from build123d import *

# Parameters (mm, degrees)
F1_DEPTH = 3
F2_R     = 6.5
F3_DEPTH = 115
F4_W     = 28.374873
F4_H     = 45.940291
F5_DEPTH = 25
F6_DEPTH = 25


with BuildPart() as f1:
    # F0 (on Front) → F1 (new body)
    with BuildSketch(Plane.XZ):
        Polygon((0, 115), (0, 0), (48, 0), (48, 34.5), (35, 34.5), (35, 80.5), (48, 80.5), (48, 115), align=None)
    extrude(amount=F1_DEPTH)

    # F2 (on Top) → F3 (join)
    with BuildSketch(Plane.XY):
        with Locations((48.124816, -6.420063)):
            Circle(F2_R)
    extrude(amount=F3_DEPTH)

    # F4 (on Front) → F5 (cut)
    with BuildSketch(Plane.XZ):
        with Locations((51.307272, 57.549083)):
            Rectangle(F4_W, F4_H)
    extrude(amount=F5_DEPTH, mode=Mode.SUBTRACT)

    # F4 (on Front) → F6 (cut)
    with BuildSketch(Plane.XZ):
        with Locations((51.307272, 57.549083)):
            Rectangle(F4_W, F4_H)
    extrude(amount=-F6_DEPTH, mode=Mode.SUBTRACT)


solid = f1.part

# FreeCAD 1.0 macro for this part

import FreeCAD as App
import Part
import Sketcher

V = App.Vector

doc = App.newDocument("Part")
params = doc.addObject("Spreadsheet::Sheet", "Params")
for row, (alias, value) in enumerate([
    ("sketch1_width", "48 mm"),
    ("sketch1_width2", "13 mm"),
    ("sketch1_height", "115 mm"),
    ("sketch1_height2", "46 mm"),
    ("pad1_length", "3 mm"),
    ("sketch2_diameter", "13 mm"),
    ("pad2_length", "115 mm"),
    ("pocket1_length", "25 mm"),
    ("pocket2_length", "25 mm"),
], start=1):
    params.set(f"A{row}", alias)
    params.set(f"B{row}", "=" + value)
    params.setAlias(f"B{row}", alias)

body = doc.addObject("PartDesign::Body", "Body")

# Sketch on XZ plane
sketch1 = body.newObject("Sketcher::SketchObject", "Sketch")
sketch1.AttachmentSupport = (doc.getObject("XZ_Plane"), [""])
sketch1.MapMode = "FlatFace"
sketch1.addGeometry(Part.LineSegment(V(0, 115, 0), V(0, 0, 0)), False)
sketch1.addGeometry(Part.LineSegment(V(0, 0, 0), V(48, 0, 0)), False)
sketch1.addGeometry(Part.LineSegment(V(48, 0, 0), V(48, 34.5, 0)), False)
sketch1.addGeometry(Part.LineSegment(V(48, 34.5, 0), V(35, 34.5, 0)), False)
sketch1.addGeometry(Part.LineSegment(V(35, 34.5, 0), V(35, 80.5, 0)), False)
sketch1.addGeometry(Part.LineSegment(V(35, 80.5, 0), V(48, 80.5, 0)), False)
sketch1.addGeometry(Part.LineSegment(V(48, 80.5, 0), V(48, 115, 0)), False)
sketch1.addGeometry(Part.LineSegment(V(48, 115, 0), V(0, 115, 0)), False)
sketch1.addConstraint(Sketcher.Constraint("Coincident", 0, 2, 1, 1))
sketch1.addConstraint(Sketcher.Constraint("Coincident", 1, 2, 2, 1))
sketch1.addConstraint(Sketcher.Constraint("Coincident", 2, 2, 3, 1))
sketch1.addConstraint(Sketcher.Constraint("Coincident", 3, 2, 4, 1))
sketch1.addConstraint(Sketcher.Constraint("Coincident", 4, 2, 5, 1))
sketch1.addConstraint(Sketcher.Constraint("Coincident", 5, 2, 6, 1))
sketch1.addConstraint(Sketcher.Constraint("Coincident", 6, 2, 7, 1))
sketch1.addConstraint(Sketcher.Constraint("Coincident", 7, 2, 0, 1))
sketch1.addConstraint(Sketcher.Constraint("Vertical", 0))
sketch1.addConstraint(Sketcher.Constraint("Horizontal", 1))
sketch1.addConstraint(Sketcher.Constraint("Vertical", 2))
sketch1.addConstraint(Sketcher.Constraint("Horizontal", 3))
sketch1.addConstraint(Sketcher.Constraint("Vertical", 4))
sketch1.addConstraint(Sketcher.Constraint("Horizontal", 5))
sketch1.addConstraint(Sketcher.Constraint("Vertical", 6))
sketch1.addConstraint(Sketcher.Constraint("Horizontal", 7))
sketch1.addConstraint(Sketcher.Constraint("Coincident", 0, 2, -1, 1))
sketch1.addConstraint(Sketcher.Constraint("Vertical", 2, 2, 5, 2))
sketch1.addConstraint(Sketcher.Constraint("Equal", 2, 6))
sketch1.addConstraint(Sketcher.Constraint("DistanceX", 1, 1, 1, 2, 48.0))
sketch1.addConstraint(Sketcher.Constraint("DistanceX", 3, 2, 3, 1, 13.0))
sketch1.addConstraint(Sketcher.Constraint("DistanceY", 0, 2, 0, 1, 115.0))
sketch1.addConstraint(Sketcher.Constraint("DistanceY", 4, 1, 4, 2, 46.0))
sketch1.setExpression("Constraints[19]", "Params.sketch1_width")
sketch1.setExpression("Constraints[20]", "Params.sketch1_width2")
sketch1.setExpression("Constraints[21]", "Params.sketch1_height")
sketch1.setExpression("Constraints[22]", "Params.sketch1_height2")
pad1 = body.newObject("PartDesign::Pad", "Pad")
pad1.Profile = sketch1
pad1.setExpression("Length", "Params.pad1_length")

# Sketch on XY plane
sketch2 = body.newObject("Sketcher::SketchObject", "Sketch001")
sketch2.AttachmentSupport = (doc.getObject("XY_Plane"), [""])
sketch2.MapMode = "FlatFace"
sketch2.addGeometry(Part.Circle(V(48.124816, -6.420063, 0), V(0, 0, 1), 6.5), False)
sketch2.addConstraint(Sketcher.Constraint("Diameter", 0, 13.0))
sketch2.addConstraint(Sketcher.Constraint("DistanceX", -1, 1, 0, 3, 48.124816))
sketch2.addConstraint(Sketcher.Constraint("DistanceY", 0, 3, -1, 1, 6.420063))
sketch2.setExpression("Constraints[0]", "Params.sketch2_diameter")
pad2 = body.newObject("PartDesign::Pad", "Pad001")
pad2.Profile = sketch2
pad2.setExpression("Length", "Params.pad2_length")

# Sketch on XZ plane
sketch3 = body.newObject("Sketcher::SketchObject", "Sketch002")
sketch3.AttachmentSupport = (doc.getObject("XZ_Plane"), [""])
sketch3.MapMode = "FlatFace"
sketch3.addGeometry(Part.LineSegment(V(37.119836, 80.519228, 0), V(37.119836, 34.578938, 0)), False)
sketch3.addGeometry(Part.LineSegment(V(37.119836, 34.578938, 0), V(65.494709, 34.578938, 0)), False)
sketch3.addGeometry(Part.LineSegment(V(65.494709, 34.578938, 0), V(65.494709, 80.519228, 0)), False)
sketch3.addGeometry(Part.LineSegment(V(65.494709, 80.519228, 0), V(37.119836, 80.519228, 0)), False)
sketch3.addConstraint(Sketcher.Constraint("Coincident", 0, 2, 1, 1))
sketch3.addConstraint(Sketcher.Constraint("Coincident", 1, 2, 2, 1))
sketch3.addConstraint(Sketcher.Constraint("Coincident", 2, 2, 3, 1))
sketch3.addConstraint(Sketcher.Constraint("Coincident", 3, 2, 0, 1))
sketch3.addConstraint(Sketcher.Constraint("Vertical", 0))
sketch3.addConstraint(Sketcher.Constraint("Horizontal", 1))
sketch3.addConstraint(Sketcher.Constraint("Vertical", 2))
sketch3.addConstraint(Sketcher.Constraint("Horizontal", 3))
sketch3.addConstraint(Sketcher.Constraint("DistanceY", 0, 2, 0, 1, 45.940291))
sketch3.addConstraint(Sketcher.Constraint("DistanceX", 1, 1, 1, 2, 28.374873))
sketch3.addConstraint(Sketcher.Constraint("DistanceX", -1, 1, 1, 2, 65.494709))
sketch3.addConstraint(Sketcher.Constraint("DistanceY", -1, 1, 2, 2, 80.519228))
pocket1 = body.newObject("PartDesign::Pocket", "Pocket")
pocket1.Profile = sketch3
pocket1.setExpression("Length", "Params.pocket1_length")
pocket1.Reversed = True

# Sketch on XZ plane
sketch4 = body.newObject("Sketcher::SketchObject", "Sketch003")
sketch4.AttachmentSupport = (doc.getObject("XZ_Plane"), [""])
sketch4.MapMode = "FlatFace"
sketch4.addGeometry(Part.LineSegment(V(37.119836, 80.519228, 0), V(37.119836, 34.578938, 0)), False)
sketch4.addGeometry(Part.LineSegment(V(37.119836, 34.578938, 0), V(65.494709, 34.578938, 0)), False)
sketch4.addGeometry(Part.LineSegment(V(65.494709, 34.578938, 0), V(65.494709, 80.519228, 0)), False)
sketch4.addGeometry(Part.LineSegment(V(65.494709, 80.519228, 0), V(37.119836, 80.519228, 0)), False)
sketch4.addConstraint(Sketcher.Constraint("Coincident", 0, 2, 1, 1))
sketch4.addConstraint(Sketcher.Constraint("Coincident", 1, 2, 2, 1))
sketch4.addConstraint(Sketcher.Constraint("Coincident", 2, 2, 3, 1))
sketch4.addConstraint(Sketcher.Constraint("Coincident", 3, 2, 0, 1))
sketch4.addConstraint(Sketcher.Constraint("Vertical", 0))
sketch4.addConstraint(Sketcher.Constraint("Horizontal", 1))
sketch4.addConstraint(Sketcher.Constraint("Vertical", 2))
sketch4.addConstraint(Sketcher.Constraint("Horizontal", 3))
sketch4.addConstraint(Sketcher.Constraint("DistanceY", 0, 2, 0, 1, 45.940291))
sketch4.addConstraint(Sketcher.Constraint("DistanceX", 1, 1, 1, 2, 28.374873))
sketch4.addConstraint(Sketcher.Constraint("DistanceX", -1, 1, 1, 2, 65.494709))
sketch4.addConstraint(Sketcher.Constraint("DistanceY", -1, 1, 2, 2, 80.519228))
pocket2 = body.newObject("PartDesign::Pocket", "Pocket001")
pocket2.Profile = sketch4
pocket2.setExpression("Length", "Params.pocket2_length")

doc.recompute()
